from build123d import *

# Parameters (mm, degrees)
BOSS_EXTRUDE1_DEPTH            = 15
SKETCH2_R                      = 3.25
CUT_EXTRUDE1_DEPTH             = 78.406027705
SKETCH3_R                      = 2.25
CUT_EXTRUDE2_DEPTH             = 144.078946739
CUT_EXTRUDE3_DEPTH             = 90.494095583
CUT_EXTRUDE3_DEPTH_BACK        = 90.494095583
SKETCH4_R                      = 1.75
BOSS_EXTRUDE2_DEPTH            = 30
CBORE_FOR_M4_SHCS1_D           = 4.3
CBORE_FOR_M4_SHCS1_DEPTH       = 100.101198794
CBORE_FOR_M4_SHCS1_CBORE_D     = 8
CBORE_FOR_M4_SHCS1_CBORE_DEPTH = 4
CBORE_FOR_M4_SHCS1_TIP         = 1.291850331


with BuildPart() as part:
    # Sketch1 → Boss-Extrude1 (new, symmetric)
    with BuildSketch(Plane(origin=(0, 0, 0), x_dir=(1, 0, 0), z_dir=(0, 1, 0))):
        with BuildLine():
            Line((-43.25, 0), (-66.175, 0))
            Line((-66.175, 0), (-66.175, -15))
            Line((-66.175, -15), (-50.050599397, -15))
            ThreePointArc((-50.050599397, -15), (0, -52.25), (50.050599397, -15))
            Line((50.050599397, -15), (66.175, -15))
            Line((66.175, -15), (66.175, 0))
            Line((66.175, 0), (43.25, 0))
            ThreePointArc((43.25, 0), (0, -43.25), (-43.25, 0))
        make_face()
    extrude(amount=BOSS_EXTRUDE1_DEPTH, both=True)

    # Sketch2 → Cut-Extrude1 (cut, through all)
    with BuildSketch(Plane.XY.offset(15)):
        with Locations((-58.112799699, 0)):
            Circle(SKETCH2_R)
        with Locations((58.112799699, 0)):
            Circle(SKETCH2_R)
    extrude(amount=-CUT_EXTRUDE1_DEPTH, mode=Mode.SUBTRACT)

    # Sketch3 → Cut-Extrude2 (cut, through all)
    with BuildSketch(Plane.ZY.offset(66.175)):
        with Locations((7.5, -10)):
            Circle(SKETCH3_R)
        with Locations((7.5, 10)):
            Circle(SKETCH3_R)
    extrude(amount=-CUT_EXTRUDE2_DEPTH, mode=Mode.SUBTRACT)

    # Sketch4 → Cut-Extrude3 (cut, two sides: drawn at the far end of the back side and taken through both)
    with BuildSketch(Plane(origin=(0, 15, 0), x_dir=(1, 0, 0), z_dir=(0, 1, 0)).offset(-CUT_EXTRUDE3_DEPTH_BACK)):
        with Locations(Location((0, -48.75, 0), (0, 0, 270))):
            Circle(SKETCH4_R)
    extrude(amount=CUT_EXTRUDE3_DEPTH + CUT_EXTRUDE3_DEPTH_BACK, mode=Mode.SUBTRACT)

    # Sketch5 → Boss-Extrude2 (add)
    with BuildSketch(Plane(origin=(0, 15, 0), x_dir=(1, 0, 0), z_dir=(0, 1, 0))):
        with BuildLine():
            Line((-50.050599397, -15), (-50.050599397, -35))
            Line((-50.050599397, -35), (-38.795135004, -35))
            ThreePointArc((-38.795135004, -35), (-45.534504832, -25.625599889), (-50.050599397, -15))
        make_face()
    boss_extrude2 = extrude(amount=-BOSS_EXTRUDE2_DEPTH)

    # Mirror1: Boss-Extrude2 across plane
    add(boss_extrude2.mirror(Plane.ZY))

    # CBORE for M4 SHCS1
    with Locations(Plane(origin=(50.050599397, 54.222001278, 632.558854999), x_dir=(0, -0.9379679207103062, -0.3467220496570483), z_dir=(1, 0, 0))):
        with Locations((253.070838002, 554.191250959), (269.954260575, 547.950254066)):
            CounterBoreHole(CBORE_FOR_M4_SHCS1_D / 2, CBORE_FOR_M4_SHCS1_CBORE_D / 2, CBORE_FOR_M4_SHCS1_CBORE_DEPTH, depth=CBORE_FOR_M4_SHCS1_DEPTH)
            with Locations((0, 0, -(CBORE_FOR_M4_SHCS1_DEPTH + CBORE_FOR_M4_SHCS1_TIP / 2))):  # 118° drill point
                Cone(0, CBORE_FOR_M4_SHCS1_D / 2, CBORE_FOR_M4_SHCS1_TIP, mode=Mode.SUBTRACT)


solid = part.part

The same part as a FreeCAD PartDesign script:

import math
import FreeCAD as App
import Part
import Sketcher

doc = App.newDocument("Part")
body = doc.addObject("PartDesign::Body", "Body")

# Sketch on XZ plane
sketch1 = body.newObject("Sketcher::SketchObject", "Sketch")
sketch1.AttachmentSupport = (doc.getObject("XZ_Plane"), [""])
sketch1.MapMode = "FlatFace"
sketch1.addGeometry(Part.LineSegment(App.Vector(-43, 0, 0), App.Vector(-66, 0, 0)), False)
sketch1.addGeometry(Part.LineSegment(App.Vector(-66, 0, 0), App.Vector(-66, 15, 0)), False)
sketch1.addGeometry(Part.LineSegment(App.Vector(-66, 15, 0), App.Vector(-50, 15, 0)), False)
sketch1.addGeometry(Part.ArcOfCircle(Part.Circle(App.Vector(0, 0, 0), App.Vector(0, 0, 1), 52), math.radians(17), math.radians(163)), False)
sketch1.addGeometry(Part.LineSegment(App.Vector(50, 15, 0), App.Vector(66, 15, 0)), False)
sketch1.addGeometry(Part.LineSegment(App.Vector(66, 15, 0), App.Vector(66, 0, 0)), False)
sketch1.addGeometry(Part.LineSegment(App.Vector(66, 0, 0), App.Vector(43, 0, 0)), False)
sketch1.addGeometry(Part.ArcOfCircle(Part.Circle(App.Vector(0, 0, 0), App.Vector(0, 0, 1), 43), math.radians(0), math.radians(180)), False)
sketch1.addConstraint(Sketcher.Constraint("Coincident", 0, 2, 1, 1))
sketch1.addConstraint(Sketcher.Constraint("Coincident", 1, 2, 2, 1))
sketch1.addConstraint(Sketcher.Constraint("Coincident", 2, 2, 3, 2))
sketch1.addConstraint(Sketcher.Constraint("Coincident", 3, 1, 4, 1))
sketch1.addConstraint(Sketcher.Constraint("Coincident", 4, 2, 5, 1))
sketch1.addConstraint(Sketcher.Constraint("Coincident", 5, 2, 6, 1))
sketch1.addConstraint(Sketcher.Constraint("Coincident", 6, 2, 7, 1))
sketch1.addConstraint(Sketcher.Constraint("Coincident", 7, 2, 0, 1))
sketch1.addConstraint(Sketcher.Constraint("Horizontal", 0))
sketch1.addConstraint(Sketcher.Constraint("Vertical", 1))
sketch1.addConstraint(Sketcher.Constraint("Horizontal", 2))
sketch1.addConstraint(Sketcher.Constraint("Horizontal", 4))
sketch1.addConstraint(Sketcher.Constraint("Vertical", 5))
sketch1.addConstraint(Sketcher.Constraint("Horizontal", 6))
sketch1.addConstraint(Sketcher.Constraint("Coincident", 3, 3, -1, 1))
sketch1.addConstraint(Sketcher.Constraint("Coincident", 7, 3, -1, 1))
sketch1.addConstraint(Sketcher.Constraint("Symmetric", 0, 2, 5, 2, -1, 1))
sketch1.addConstraint(Sketcher.Constraint("PointOnObject", 0, 2, -1))
sketch1.addConstraint(Sketcher.Constraint("Horizontal", 2, 2, 3, 1))
sketch1.addConstraint(Sketcher.Constraint("DistanceY", 1, 1, 1, 2, 15.0))
sketch1.addConstraint(Sketcher.Constraint("Radius", 3, 52.25))
sketch1.addConstraint(Sketcher.Constraint("Radius", 7, 43.25))
sketch1.addConstraint(Sketcher.Constraint("DistanceX", 0, 2, 0, 1, 22.925))
pad1 = body.newObject("PartDesign::Pad", "Pad")
pad1.Profile = sketch1
pad1.Length = 30
pad1.Midplane = True

# Sketch on XY plane
sketch2 = body.newObject("Sketcher::SketchObject", "Sketch001")
sketch2.AttachmentSupport = (doc.getObject("XY_Plane"), [""])
sketch2.MapMode = "FlatFace"
sketch2.AttachmentOffset = App.Placement(App.Vector(0, 0, 15), App.Rotation())
sketch2.addGeometry(Part.Circle(App.Vector(-58.1, 0, 0), App.Vector(0, 0, 1), 3.2), False)
sketch2.addGeometry(Part.Circle(App.Vector(58.1, 0, 0), App.Vector(0, 0, 1), 3.2), False)
sketch2.addConstraint(Sketcher.Constraint("Equal", 0, 1))
sketch2.addConstraint(Sketcher.Constraint("Symmetric", 0, 3, 1, 3, -1, 1))
sketch2.addConstraint(Sketcher.Constraint("PointOnObject", 0, 3, -1))
sketch2.addConstraint(Sketcher.Constraint("Diameter", 0, 6.5))
sketch2.addConstraint(Sketcher.Constraint("DistanceX", 0, 3, -1, 1, 58.1128))
pocket1 = body.newObject("PartDesign::Pocket", "Pocket")
pocket1.Profile = sketch2
pocket1.Type = "ThroughAll"

# Sketch on YZ plane
sketch3 = body.newObject("Sketcher::SketchObject", "Sketch002")
sketch3.AttachmentSupport = (doc.getObject("YZ_Plane"), [""])
sketch3.MapMode = "FlatFace"
sketch3.AttachmentOffset = App.Placement(App.Vector(0, 0, -66.175), App.Rotation())
sketch3.addGeometry(Part.Circle(App.Vector(-10, 7.5, 0), App.Vector(0, 0, 1), 2.2), False)
sketch3.addGeometry(Part.Circle(App.Vector(10, 7.5, 0), App.Vector(0, 0, 1), 2.2), False)
sketch3.addConstraint(Sketcher.Constraint("Equal", 0, 1))
sketch3.addConstraint(Sketcher.Constraint("Symmetric", 0, 3, 1, 3, -2))
sketch3.addConstraint(Sketcher.Constraint("Diameter", 0, 4.5))
sketch3.addConstraint(Sketcher.Constraint("DistanceX", 0, 3, -1, 1, 10.0))
sketch3.addConstraint(Sketcher.Constraint("DistanceY", -1, 1, 0, 3, 7.5))
pocket2 = body.newObject("PartDesign::Pocket", "Pocket001")
pocket2.Profile = sketch3
pocket2.Type = "ThroughAll"
pocket2.Reversed = True

# Sketch on XZ plane
sketch4 = body.newObject("Sketcher::SketchObject", "Sketch003")
sketch4.AttachmentSupport = (doc.getObject("XZ_Plane"), [""])
sketch4.MapMode = "FlatFace"
sketch4.AttachmentOffset = App.Placement(App.Vector(0, 0, -15), App.Rotation())
sketch4.addGeometry(Part.Circle(App.Vector(0, 48.8, 0), App.Vector(0, 0, 1), 1.8), False)
sketch4.addConstraint(Sketcher.Constraint("PointOnObject", 0, 3, -2))
sketch4.addConstraint(Sketcher.Constraint("Diameter", 0, 3.5))
sketch4.addConstraint(Sketcher.Constraint("DistanceY", -1, 1, 0, 3, 48.75))
pocket3 = body.newObject("PartDesign::Pocket", "Pocket002")
pocket3.Profile = sketch4
pocket3.Type = "ThroughAll"
pocket3.Midplane = True

# Sketch on XZ plane
sketch5 = body.newObject("Sketcher::SketchObject", "Sketch004")
sketch5.AttachmentSupport = (doc.getObject("XZ_Plane"), [""])
sketch5.MapMode = "FlatFace"
sketch5.AttachmentOffset = App.Placement(App.Vector(0, 0, -15), App.Rotation())
sketch5.addGeometry(Part.LineSegment(App.Vector(-50, 15, 0), App.Vector(-50, 35, 0)), False)
sketch5.addGeometry(Part.LineSegment(App.Vector(-50, 35, 0), App.Vector(-39, 35, 0)), False)
sketch5.addGeometry(Part.ArcOfCircle(Part.Circle(App.Vector(0, 0, 0), App.Vector(0, 0, 1), 52), math.radians(138), math.radians(163)), False)
sketch5.addConstraint(Sketcher.Constraint("Coincident", 0, 2, 1, 1))
sketch5.addConstraint(Sketcher.Constraint("Coincident", 1, 2, 2, 1))
sketch5.addConstraint(Sketcher.Constraint("Coincident", 2, 2, 0, 1))
sketch5.addConstraint(Sketcher.Constraint("Vertical", 0))
sketch5.addConstraint(Sketcher.Constraint("Horizontal", 1))
sketch5.addConstraint(Sketcher.Constraint("Coincident", 2, 3, -1, 1))
sketch5.addConstraint(Sketcher.Constraint("DistanceY", 0, 1, 0, 2, 20.0))
sketch5.addConstraint(Sketcher.Constraint("Radius", 2, 52.25))
sketch5.addConstraint(Sketcher.Constraint("DistanceY", -1, 1, 0, 2, 35.0))
pad2 = body.newObject("PartDesign::Pad", "Pad001")
pad2.Profile = sketch5
pad2.Length = 30
doc.recompute()

mirrored = body.newObject("PartDesign::Mirrored", "Mirrored")
mirrored.Originals = [pad2]
mirrored.MirrorPlane = (doc.getObject("YZ_Plane"), [""])
body.Tip = mirrored

# Sketch on YZ plane
sketch6 = body.newObject("Sketcher::SketchObject", "Sketch005")
sketch6.AttachmentSupport = (doc.getObject("YZ_Plane"), [""])
sketch6.MapMode = "FlatFace"
sketch6.AttachmentOffset = App.Placement(App.Vector(0, 0, 50.050599), App.Rotation())
sketch6.addGeometry(Part.Circle(App.Vector(9, 25, 0), App.Vector(0, 0, 1), 2.1), False)
sketch6.addGeometry(Part.Circle(App.Vector(-9, 25, 0), App.Vector(0, 0, 1), 2.1), False)
sketch6.addConstraint(Sketcher.Constraint("Equal", 0, 1))
sketch6.addConstraint(Sketcher.Constraint("Symmetric", 0, 3, 1, 3, -2))
sketch6.addConstraint(Sketcher.Constraint("Diameter", 0, 4.3))
sketch6.addConstraint(Sketcher.Constraint("DistanceX", -1, 1, 0, 3, 9.0))
sketch6.addConstraint(Sketcher.Constraint("DistanceY", -1, 1, 0, 3, 25.0))
doc.recompute()
hole = body.newObject("PartDesign::Hole", "Hole")
hole.Profile = sketch6
hole.ThreadType = "None"
hole.Diameter = 4.3
hole.DepthType = "Dimension"
hole.Depth = 100.101199
hole.DrillPoint = "Angled"
hole.DrillPointAngle = 118
hole.HoleCutType = "Counterbore"
hole.HoleCutDiameter = 8
hole.HoleCutDepth = 4

doc.recompute()
